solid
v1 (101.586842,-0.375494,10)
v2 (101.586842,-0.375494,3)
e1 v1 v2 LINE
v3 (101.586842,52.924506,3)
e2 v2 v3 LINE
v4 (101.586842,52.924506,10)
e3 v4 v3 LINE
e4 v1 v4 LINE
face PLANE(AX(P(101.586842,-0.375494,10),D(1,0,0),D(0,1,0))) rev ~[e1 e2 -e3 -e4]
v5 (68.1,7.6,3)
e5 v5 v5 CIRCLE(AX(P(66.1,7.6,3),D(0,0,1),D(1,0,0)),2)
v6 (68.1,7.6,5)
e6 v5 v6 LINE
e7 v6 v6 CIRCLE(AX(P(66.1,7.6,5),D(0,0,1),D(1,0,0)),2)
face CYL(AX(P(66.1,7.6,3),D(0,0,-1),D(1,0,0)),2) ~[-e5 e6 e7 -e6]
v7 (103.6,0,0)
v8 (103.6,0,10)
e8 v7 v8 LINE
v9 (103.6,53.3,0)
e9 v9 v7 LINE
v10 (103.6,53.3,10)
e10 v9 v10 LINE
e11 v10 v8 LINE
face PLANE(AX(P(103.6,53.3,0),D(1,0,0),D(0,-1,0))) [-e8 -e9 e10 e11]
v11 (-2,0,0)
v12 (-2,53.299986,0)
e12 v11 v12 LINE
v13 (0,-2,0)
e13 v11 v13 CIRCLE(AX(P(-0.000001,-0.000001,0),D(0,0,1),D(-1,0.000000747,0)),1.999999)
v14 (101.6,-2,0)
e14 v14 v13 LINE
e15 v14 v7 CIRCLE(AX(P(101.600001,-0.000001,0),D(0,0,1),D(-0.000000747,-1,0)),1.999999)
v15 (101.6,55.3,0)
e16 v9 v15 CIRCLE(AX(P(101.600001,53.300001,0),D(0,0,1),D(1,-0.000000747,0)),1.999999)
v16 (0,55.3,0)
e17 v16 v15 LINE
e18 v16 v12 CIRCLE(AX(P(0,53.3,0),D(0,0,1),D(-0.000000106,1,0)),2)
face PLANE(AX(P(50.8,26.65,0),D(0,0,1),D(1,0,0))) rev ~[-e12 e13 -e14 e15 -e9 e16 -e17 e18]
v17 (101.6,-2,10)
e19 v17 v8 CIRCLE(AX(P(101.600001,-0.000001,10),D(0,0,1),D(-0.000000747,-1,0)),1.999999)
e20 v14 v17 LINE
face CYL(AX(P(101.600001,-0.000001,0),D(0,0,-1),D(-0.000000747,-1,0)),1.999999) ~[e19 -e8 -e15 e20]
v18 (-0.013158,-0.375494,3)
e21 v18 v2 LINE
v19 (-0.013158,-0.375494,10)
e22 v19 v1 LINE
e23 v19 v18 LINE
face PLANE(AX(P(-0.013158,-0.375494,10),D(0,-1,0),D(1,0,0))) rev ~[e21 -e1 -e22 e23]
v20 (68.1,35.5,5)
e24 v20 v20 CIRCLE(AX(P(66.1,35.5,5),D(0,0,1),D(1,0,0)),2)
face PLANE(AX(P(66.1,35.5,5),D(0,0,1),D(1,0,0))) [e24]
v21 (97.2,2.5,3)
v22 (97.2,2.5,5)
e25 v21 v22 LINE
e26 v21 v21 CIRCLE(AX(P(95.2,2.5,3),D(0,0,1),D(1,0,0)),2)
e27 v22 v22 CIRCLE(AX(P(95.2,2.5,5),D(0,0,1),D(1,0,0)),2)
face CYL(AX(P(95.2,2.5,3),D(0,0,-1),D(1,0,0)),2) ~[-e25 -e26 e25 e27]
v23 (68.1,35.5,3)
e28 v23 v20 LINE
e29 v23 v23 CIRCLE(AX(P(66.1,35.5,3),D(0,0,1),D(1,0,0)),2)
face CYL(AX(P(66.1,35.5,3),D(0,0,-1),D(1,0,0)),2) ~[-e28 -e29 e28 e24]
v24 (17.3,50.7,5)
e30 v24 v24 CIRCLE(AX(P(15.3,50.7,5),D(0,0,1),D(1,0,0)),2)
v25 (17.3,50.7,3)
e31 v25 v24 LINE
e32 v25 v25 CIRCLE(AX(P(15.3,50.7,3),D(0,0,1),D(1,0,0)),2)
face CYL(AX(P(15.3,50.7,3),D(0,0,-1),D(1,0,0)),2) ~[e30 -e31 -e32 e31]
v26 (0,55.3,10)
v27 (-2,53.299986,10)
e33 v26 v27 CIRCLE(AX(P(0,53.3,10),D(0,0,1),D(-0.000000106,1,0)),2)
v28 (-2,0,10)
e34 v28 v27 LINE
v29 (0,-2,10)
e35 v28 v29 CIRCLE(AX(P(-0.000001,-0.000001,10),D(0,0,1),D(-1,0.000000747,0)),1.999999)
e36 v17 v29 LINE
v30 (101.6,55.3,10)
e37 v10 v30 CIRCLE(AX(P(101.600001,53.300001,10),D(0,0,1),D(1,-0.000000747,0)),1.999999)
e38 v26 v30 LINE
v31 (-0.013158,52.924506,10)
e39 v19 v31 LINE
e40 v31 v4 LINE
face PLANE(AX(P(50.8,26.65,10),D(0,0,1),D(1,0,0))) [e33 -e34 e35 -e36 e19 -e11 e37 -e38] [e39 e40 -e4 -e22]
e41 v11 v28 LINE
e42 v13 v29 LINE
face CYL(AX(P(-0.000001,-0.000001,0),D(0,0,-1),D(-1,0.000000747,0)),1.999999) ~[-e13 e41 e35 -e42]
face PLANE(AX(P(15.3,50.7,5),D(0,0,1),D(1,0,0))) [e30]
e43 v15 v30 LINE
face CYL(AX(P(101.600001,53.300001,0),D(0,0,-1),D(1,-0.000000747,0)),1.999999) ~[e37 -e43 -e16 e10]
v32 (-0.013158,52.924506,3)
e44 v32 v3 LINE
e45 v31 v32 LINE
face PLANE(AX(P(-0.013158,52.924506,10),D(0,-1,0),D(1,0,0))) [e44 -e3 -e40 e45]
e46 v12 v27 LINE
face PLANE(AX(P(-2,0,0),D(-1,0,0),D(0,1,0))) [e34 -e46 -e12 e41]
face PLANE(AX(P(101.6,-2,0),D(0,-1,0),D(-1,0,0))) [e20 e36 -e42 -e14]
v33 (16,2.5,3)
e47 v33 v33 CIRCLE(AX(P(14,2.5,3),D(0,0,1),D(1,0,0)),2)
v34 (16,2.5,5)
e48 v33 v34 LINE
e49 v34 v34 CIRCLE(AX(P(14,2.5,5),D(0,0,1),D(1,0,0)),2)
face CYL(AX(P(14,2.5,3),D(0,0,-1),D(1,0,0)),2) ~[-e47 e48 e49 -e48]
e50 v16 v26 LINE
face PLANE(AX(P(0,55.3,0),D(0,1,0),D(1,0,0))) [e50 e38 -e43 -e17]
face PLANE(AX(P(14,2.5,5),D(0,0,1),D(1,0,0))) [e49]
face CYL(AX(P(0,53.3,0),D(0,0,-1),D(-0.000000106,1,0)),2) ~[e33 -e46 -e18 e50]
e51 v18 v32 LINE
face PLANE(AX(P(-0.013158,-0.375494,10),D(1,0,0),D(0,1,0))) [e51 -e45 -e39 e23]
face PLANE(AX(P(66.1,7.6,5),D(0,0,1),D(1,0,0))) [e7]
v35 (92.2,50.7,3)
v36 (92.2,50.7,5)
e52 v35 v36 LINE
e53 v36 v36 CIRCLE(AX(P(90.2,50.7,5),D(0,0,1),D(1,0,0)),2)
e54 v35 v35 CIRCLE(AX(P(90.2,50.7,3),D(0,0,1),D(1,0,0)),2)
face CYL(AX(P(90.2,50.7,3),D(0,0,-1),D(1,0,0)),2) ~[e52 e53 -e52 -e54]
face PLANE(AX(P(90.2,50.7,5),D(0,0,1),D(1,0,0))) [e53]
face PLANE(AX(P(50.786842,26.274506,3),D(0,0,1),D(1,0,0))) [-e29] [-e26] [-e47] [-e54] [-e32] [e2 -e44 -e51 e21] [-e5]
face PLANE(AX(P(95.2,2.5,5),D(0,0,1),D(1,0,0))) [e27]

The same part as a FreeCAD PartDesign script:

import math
import FreeCAD as App
import Part
import Sketcher

V = App.Vector
Q = App.Units.Quantity

doc = App.newDocument("Part")
body = doc.addObject("PartDesign::Body", "Body")

sketch1 = body.newObject("Sketcher::SketchObject", "Sketch")
sketch1.AttachmentSupport = (doc.getObject("XY_Plane"), [""])
sketch1.MapMode = "FlatFace"
sketch1.addGeometry([
    Part.ArcOfCircle(Part.Circle(V(0, 53.3, 0), V(0, 0, 1), 2), math.radians(90), math.radians(180)),
    Part.LineSegment(V(-2, 53.3, 0), V(-2, 0, 0)),
    Part.ArcOfCircle(Part.Circle(V(0, 0, 0), V(0, 0, 1), 2), math.radians(180), math.radians(270)),
    Part.LineSegment(V(0, -2, 0), V(101.6, -2, 0)),
    Part.ArcOfCircle(Part.Circle(V(101.6, 0, 0), V(0, 0, 1), 2), math.radians(-90), math.radians(0)),
    Part.LineSegment(V(103.6, 0, 0), V(103.6, 53.3, 0)),
    Part.ArcOfCircle(Part.Circle(V(101.6, 53.3, 0), V(0, 0, 1), 2), math.radians(0), math.radians(90)),
    Part.LineSegment(V(101.6, 55.3, 0), V(0, 55.3, 0)),
], False)
sketch1.addConstraint([
    Sketcher.Constraint("Coincident", 0, 2, 1, 1),
    Sketcher.Constraint("Tangent", 1, 2, 2, 1),
    Sketcher.Constraint("Tangent", 2, 2, 3, 1),
    Sketcher.Constraint("Tangent", 3, 2, 4, 1),
    Sketcher.Constraint("Tangent", 4, 2, 5, 1),
    Sketcher.Constraint("Tangent", 5, 2, 6, 1),
    Sketcher.Constraint("Tangent", 6, 2, 7, 1),
    Sketcher.Constraint("Tangent", 7, 2, 0, 1),
    Sketcher.Constraint("Vertical", 1),
    Sketcher.Constraint("Horizontal", 3),
    Sketcher.Constraint("Vertical", 5),
    Sketcher.Constraint("Horizontal", 7),
    Sketcher.Constraint("Coincident", 2, 3, -1, 1),
    Sketcher.Constraint("Equal", 0, 2),
    Sketcher.Constraint("Equal", 2, 4),
    Sketcher.Constraint("Equal", 4, 6),
    Sketcher.Constraint("Radius", 0, Q("2 mm")),
    Sketcher.Constraint("DistanceX", 3, 1, 3, 2, Q("101.6 mm")),
    Sketcher.Constraint("DistanceY", 5, 1, 5, 2, Q("53.3 mm")),
    Sketcher.Constraint("DistanceY", 1, 2, 1, 1, Q("53.299986 mm")),
])
pad1 = body.newObject("PartDesign::Pad", "Pad")
pad1.Profile = sketch1
pad1.Length = 10

sketch2 = body.newObject("Sketcher::SketchObject", "Sketch001")
sketch2.AttachmentSupport = (doc.getObject("XY_Plane"), [""])
sketch2.MapMode = "FlatFace"
sketch2.AttachmentOffset = App.Placement(V(0, 0, 10), App.Rotation())
sketch2.addGeometry([
    Part.LineSegment(V(0, 53, 0), V(0, 0, 0)),
    Part.LineSegment(V(0, 0, 0), V(102, 0, 0)),
    Part.LineSegment(V(102, 0, 0), V(102, 53, 0)),
    Part.LineSegment(V(102, 53, 0), V(0, 53, 0)),
], False)
sketch2.addConstraint([
    Sketcher.Constraint("Coincident", 0, 2, 1, 1),
    Sketcher.Constraint("Coincident", 1, 2, 2, 1),
    Sketcher.Constraint("Coincident", 2, 2, 3, 1),
    Sketcher.Constraint("Coincident", 3, 2, 0, 1),
    Sketcher.Constraint("Vertical", 0),
    Sketcher.Constraint("Horizontal", 1),
    Sketcher.Constraint("Vertical", 2),
    Sketcher.Constraint("Horizontal", 3),
    Sketcher.Constraint("DistanceX", 1, 1, 1, 2, Q("101.6 mm")),
    Sketcher.Constraint("DistanceY", 0, 2, 0, 1, Q("53.3 mm")),
    Sketcher.Constraint("DistanceX", 0, 2, -1, 1, Q("0.013158 mm")),
    Sketcher.Constraint("DistanceY", 0, 2, -1, 1, Q("0.375494 mm")),
])
pocket1 = body.newObject("PartDesign::Pocket", "Pocket")
pocket1.Profile = sketch2
pocket1.Length = 7

sketch3 = body.newObject("Sketcher::SketchObject", "Sketch002")
sketch3.AttachmentSupport = (doc.getObject("XY_Plane"), [""])
sketch3.MapMode = "FlatFace"
sketch3.AttachmentOffset = App.Placement(V(0, 0, 3), App.Rotation())
sketch3.addGeometry([
    Part.Circle(V(15.3, 50.7, 0), V(0, 0, 1), 2),
    Part.Circle(V(14, 2.5, 0), V(0, 0, 1), 2),
    Part.Circle(V(66.1, 35.5, 0), V(0, 0, 1), 2),
    Part.Circle(V(66.1, 7.6, 0), V(0, 0, 1), 2),
    Part.Circle(V(90.2, 50.7, 0), V(0, 0, 1), 2),
    Part.Circle(V(95.2, 2.5, 0), V(0, 0, 1), 2),
], False)
sketch3.addConstraint([
    Sketcher.Constraint("Equal", 0, 1),
    Sketcher.Constraint("Equal", 1, 2),
    Sketcher.Constraint("Equal", 2, 3),
    Sketcher.Constraint("Equal", 3, 4),
    Sketcher.Constraint("Equal", 4, 5),
    Sketcher.Constraint("Horizontal", 0, 3, 4, 3),
    Sketcher.Constraint("Horizontal", 1, 3, 5, 3),
    Sketcher.Constraint("Vertical", 2, 3, 3, 3),
    Sketcher.Constraint("Diameter", 0, Q("4 mm")),
    Sketcher.Constraint("DistanceX", -1, 1, 1, 3, Q("14 mm")),
    Sketcher.Constraint("DistanceY", 1, 3, 2, 3, Q("33 mm")),
    Sketcher.Constraint("DistanceX", 4, 3, 5, 3, Q("5 mm")),
    Sketcher.Constraint("DistanceX", -1, 1, 0, 3, Q("15.3 mm")),
    Sketcher.Constraint("DistanceY", -1, 1, 0, 3, Q("50.7 mm")),
    Sketcher.Constraint("DistanceY", -1, 1, 1, 3, Q("2.5 mm")),
    Sketcher.Constraint("DistanceX", -1, 1, 2, 3, Q("66.1 mm")),
    Sketcher.Constraint("DistanceY", -1, 1, 3, 3, Q("7.6 mm")),
    Sketcher.Constraint("DistanceX", -1, 1, 4, 3, Q("90.2 mm")),
])
pad2 = body.newObject("PartDesign::Pad", "Pad001")
pad2.Profile = sketch3
pad2.Length = 2

doc.recompute()
